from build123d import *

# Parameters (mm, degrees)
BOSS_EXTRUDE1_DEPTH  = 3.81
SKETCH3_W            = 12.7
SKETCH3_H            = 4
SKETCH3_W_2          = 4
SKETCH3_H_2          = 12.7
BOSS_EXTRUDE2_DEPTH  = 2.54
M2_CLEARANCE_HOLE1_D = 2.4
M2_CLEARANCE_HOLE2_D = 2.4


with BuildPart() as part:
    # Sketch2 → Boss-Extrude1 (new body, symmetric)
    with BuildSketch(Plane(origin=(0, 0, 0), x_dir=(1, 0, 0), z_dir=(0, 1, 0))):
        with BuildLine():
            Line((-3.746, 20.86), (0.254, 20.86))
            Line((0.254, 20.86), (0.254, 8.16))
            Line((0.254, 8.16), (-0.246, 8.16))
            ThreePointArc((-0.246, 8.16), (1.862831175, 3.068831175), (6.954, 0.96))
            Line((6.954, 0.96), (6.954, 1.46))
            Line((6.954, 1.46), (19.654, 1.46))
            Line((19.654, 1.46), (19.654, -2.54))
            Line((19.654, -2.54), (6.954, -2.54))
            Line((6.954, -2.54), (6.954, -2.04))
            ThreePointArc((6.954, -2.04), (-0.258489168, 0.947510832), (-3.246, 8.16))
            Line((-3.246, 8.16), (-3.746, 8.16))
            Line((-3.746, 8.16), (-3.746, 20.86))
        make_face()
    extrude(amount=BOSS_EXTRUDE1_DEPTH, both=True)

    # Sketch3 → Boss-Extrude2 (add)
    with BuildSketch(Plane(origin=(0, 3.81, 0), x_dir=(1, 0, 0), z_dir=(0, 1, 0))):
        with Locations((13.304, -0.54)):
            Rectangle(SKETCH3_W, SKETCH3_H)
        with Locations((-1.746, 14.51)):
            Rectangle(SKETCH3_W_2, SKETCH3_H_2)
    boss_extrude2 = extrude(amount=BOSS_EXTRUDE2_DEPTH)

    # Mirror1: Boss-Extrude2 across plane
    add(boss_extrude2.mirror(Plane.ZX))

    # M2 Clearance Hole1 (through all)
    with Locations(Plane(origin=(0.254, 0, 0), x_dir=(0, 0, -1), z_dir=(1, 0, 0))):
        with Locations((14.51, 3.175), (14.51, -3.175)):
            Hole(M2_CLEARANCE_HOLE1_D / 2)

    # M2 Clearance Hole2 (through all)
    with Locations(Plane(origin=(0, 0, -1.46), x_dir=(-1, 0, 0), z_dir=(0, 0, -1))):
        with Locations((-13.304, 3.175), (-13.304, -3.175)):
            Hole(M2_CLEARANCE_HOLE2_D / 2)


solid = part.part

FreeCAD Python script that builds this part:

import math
import FreeCAD as App
import Part
import Sketcher

doc = App.newDocument("Part")
body = doc.addObject("PartDesign::Body", "Body")

sketch1 = body.newObject("Sketcher::SketchObject", "Sketch")
sketch1.AttachmentSupport = (doc.getObject("XZ_Plane"), [""])
sketch1.MapMode = "FlatFace"
sketch1.addGeometry(Part.LineSegment(App.Vector(0.254, -20.86, 0), App.Vector(-3.746, -20.86, 0)), False)
sketch1.addGeometry(Part.LineSegment(App.Vector(-3.746, -20.86, 0), App.Vector(-3.746, -8.16, 0)), False)
sketch1.addGeometry(Part.LineSegment(App.Vector(-3.746, -8.16, 0), App.Vector(-3.246, -8.16, 0)), False)
sketch1.addGeometry(Part.ArcOfCircle(Part.Circle(App.Vector(6.954, -8.16, 0), App.Vector(0, 0, 1), 10.2), math.radians(90), math.radians(180)), False)
sketch1.addGeometry(Part.LineSegment(App.Vector(6.954, 2.04, 0), App.Vector(6.954, 2.54, 0)), False)
sketch1.addGeometry(Part.LineSegment(App.Vector(6.954, 2.54, 0), App.Vector(19.654, 2.54, 0)), False)
sketch1.addGeometry(Part.LineSegment(App.Vector(19.654, 2.54, 0), App.Vector(19.654, -1.46, 0)), False)
sketch1.addGeometry(Part.LineSegment(App.Vector(19.654, -1.46, 0), App.Vector(6.954, -1.46, 0)), False)
sketch1.addGeometry(Part.LineSegment(App.Vector(6.954, -1.46, 0), App.Vector(6.954, -0.96, 0)), False)
sketch1.addGeometry(Part.ArcOfCircle(Part.Circle(App.Vector(6.954, -8.16, 0), App.Vector(0, 0, 1), 7.2), math.radians(90), math.radians(180)), False)
sketch1.addGeometry(Part.LineSegment(App.Vector(-0.246, -8.16, 0), App.Vector(0.254, -8.16, 0)), False)
sketch1.addGeometry(Part.LineSegment(App.Vector(0.254, -8.16, 0), App.Vector(0.254, -20.86, 0)), False)
sketch1.addConstraint(Sketcher.Constraint("Coincident", 0, 2, 1, 1))
sketch1.addConstraint(Sketcher.Constraint("Coincident", 1, 2, 2, 1))
sketch1.addConstraint(Sketcher.Constraint("Coincident", 2, 2, 3, 2))
sketch1.addConstraint(Sketcher.Constraint("Coincident", 3, 1, 4, 1))
sketch1.addConstraint(Sketcher.Constraint("Coincident", 4, 2, 5, 1))
sketch1.addConstraint(Sketcher.Constraint("Coincident", 5, 2, 6, 1))
sketch1.addConstraint(Sketcher.Constraint("Coincident", 6, 2, 7, 1))
sketch1.addConstraint(Sketcher.Constraint("Coincident", 7, 2, 8, 1))
sketch1.addConstraint(Sketcher.Constraint("Coincident", 8, 2, 9, 1))
sketch1.addConstraint(Sketcher.Constraint("Coincident", 9, 2, 10, 1))
sketch1.addConstraint(Sketcher.Constraint("Coincident", 10, 2, 11, 1))
sketch1.addConstraint(Sketcher.Constraint("Coincident", 11, 2, 0, 1))
sketch1.addConstraint(Sketcher.Constraint("Horizontal", 0))
sketch1.addConstraint(Sketcher.Constraint("Vertical", 1))
sketch1.addConstraint(Sketcher.Constraint("Horizontal", 2))
sketch1.addConstraint(Sketcher.Constraint("Vertical", 4))
sketch1.addConstraint(Sketcher.Constraint("Horizontal", 5))
sketch1.addConstraint(Sketcher.Constraint("Vertical", 6))
sketch1.addConstraint(Sketcher.Constraint("Horizontal", 7))
sketch1.addConstraint(Sketcher.Constraint("Vertical", 8))
sketch1.addConstraint(Sketcher.Constraint("Horizontal", 10))
sketch1.addConstraint(Sketcher.Constraint("Vertical", 11))
sketch1.addConstraint(Sketcher.Constraint("Coincident", 9, 3, 3, 3))
sketch1.addConstraint(Sketcher.Constraint("Horizontal", 9, 3, 1, 2))
sketch1.addConstraint(Sketcher.Constraint("Horizontal", 2, 2, 9, 2))
sketch1.addConstraint(Sketcher.Constraint("Vertical", 9, 3, 3, 1))
sketch1.addConstraint(Sketcher.Constraint("Vertical", 4, 2, 7, 2))
sketch1.addConstraint(Sketcher.Constraint("Equal", 2, 10))
sketch1.addConstraint(Sketcher.Constraint("Equal", 7, 1))
sketch1.addConstraint(Sketcher.Constraint("Equal", 10, 4))
sketch1.addConstraint(Sketcher.Constraint("Equal", 0, 6))
sketch1.addConstraint(Sketcher.Constraint("Radius", 3, 10.2))
sketch1.addConstraint(Sketcher.Constraint("Radius", 9, 7.2))
sketch1.addConstraint(Sketcher.Constraint("DistanceX", 0, 2, 0, 1, 4.0))
sketch1.addConstraint(Sketcher.Constraint("DistanceX", 5, 1, 5, 2, 12.7))
sketch1.addConstraint(Sketcher.Constraint("DistanceY", 3, 3, -1, 1, 8.16))
sketch1.addConstraint(Sketcher.Constraint("DistanceX", -1, 1, 3, 3, 6.954))
pad1 = body.newObject("PartDesign::Pad", "Pad")
pad1.Profile = sketch1
pad1.Length = 7.62
pad1.Midplane = True

sketch2 = body.newObject("Sketcher::SketchObject", "Sketch001")
sketch2.AttachmentSupport = (doc.getObject("XZ_Plane"), [""])
sketch2.MapMode = "FlatFace"
sketch2.AttachmentOffset = App.Placement(App.Vector(0, 0, -3.81), App.Rotation())
sketch2.addGeometry(Part.LineSegment(App.Vector(6.954, -1.46, 0), App.Vector(6.954, 2.54, 0)), False)
sketch2.addGeometry(Part.LineSegment(App.Vector(6.954, 2.54, 0), App.Vector(19.654, 2.54, 0)), False)
sketch2.addGeometry(Part.LineSegment(App.Vector(19.654, 2.54, 0), App.Vector(19.654, -1.46, 0)), False)
sketch2.addGeometry(Part.LineSegment(App.Vector(19.654, -1.46, 0), App.Vector(6.954, -1.46, 0)), False)
sketch2.addGeometry(Part.LineSegment(App.Vector(-3.746, -20.86, 0), App.Vector(-3.746, -8.16, 0)), False)
sketch2.addGeometry(Part.LineSegment(App.Vector(-3.746, -8.16, 0), App.Vector(0.254, -8.16, 0)), False)
sketch2.addGeometry(Part.LineSegment(App.Vector(0.254, -8.16, 0), App.Vector(0.254, -20.86, 0)), False)
sketch2.addGeometry(Part.LineSegment(App.Vector(0.254, -20.86, 0), App.Vector(-3.746, -20.86, 0)), False)
sketch2.addConstraint(Sketcher.Constraint("Coincident", 0, 2, 1, 1))
sketch2.addConstraint(Sketcher.Constraint("Coincident", 1, 2, 2, 1))
sketch2.addConstraint(Sketcher.Constraint("Coincident", 2, 2, 3, 1))
sketch2.addConstraint(Sketcher.Constraint("Coincident", 3, 2, 0, 1))
sketch2.addConstraint(Sketcher.Constraint("Coincident", 4, 2, 5, 1))
sketch2.addConstraint(Sketcher.Constraint("Coincident", 5, 2, 6, 1))
sketch2.addConstraint(Sketcher.Constraint("Coincident", 6, 2, 7, 1))
sketch2.addConstraint(Sketcher.Constraint("Coincident", 7, 2, 4, 1))
sketch2.addConstraint(Sketcher.Constraint("Vertical", 0))
sketch2.addConstraint(Sketcher.Constraint("Horizontal", 1))
sketch2.addConstraint(Sketcher.Constraint("Vertical", 2))
sketch2.addConstraint(Sketcher.Constraint("Horizontal", 3))
sketch2.addConstraint(Sketcher.Constraint("Vertical", 4))
sketch2.addConstraint(Sketcher.Constraint("Horizontal", 5))
sketch2.addConstraint(Sketcher.Constraint("Vertical", 6))
sketch2.addConstraint(Sketcher.Constraint("Horizontal", 7))
sketch2.addConstraint(Sketcher.Constraint("Equal", 7, 0))
sketch2.addConstraint(Sketcher.Constraint("Equal", 3, 4))
sketch2.addConstraint(Sketcher.Constraint("DistanceX", 5, 1, 5, 2, 4.0))
sketch2.addConstraint(Sketcher.Constraint("DistanceX", 1, 1, 1, 2, 12.7))
sketch2.addConstraint(Sketcher.Constraint("DistanceX", 4, 2, 3, 2, 10.7))
sketch2.addConstraint(Sketcher.Constraint("DistanceY", 4, 2, 3, 2, 6.7))
sketch2.addConstraint(Sketcher.Constraint("DistanceY", -1, 1, 0, 2, 2.54))
sketch2.addConstraint(Sketcher.Constraint("DistanceX", -1, 1, 0, 2, 6.954))
pad2 = body.newObject("PartDesign::Pad", "Pad001")
pad2.Profile = sketch2
pad2.Length = 2.54
pad2.Reversed = True
doc.recompute()

mirrored = body.newObject("PartDesign::Mirrored", "Mirrored")
mirrored.Originals = [pad2]
mirrored.MirrorPlane = (doc.getObject("XZ_Plane"), [""])
body.Tip = mirrored

sketch3 = body.newObject("Sketcher::SketchObject", "Sketch002")
sketch3.AttachmentSupport = (doc.getObject("YZ_Plane"), [""])
sketch3.MapMode = "FlatFace"
sketch3.AttachmentOffset = App.Placement(App.Vector(0, 0, 0.254), App.Rotation())
sketch3.addGeometry(Part.Circle(App.Vector(3.175, -14.51, 0), App.Vector(0, 0, 1), 1.2), False)
sketch3.addGeometry(Part.Circle(App.Vector(-3.175, -14.51, 0), App.Vector(0, 0, 1), 1.2), False)
sketch3.addConstraint(Sketcher.Constraint("Equal", 0, 1))
sketch3.addConstraint(Sketcher.Constraint("Symmetric", 0, 3, 1, 3, -2))
sketch3.addConstraint(Sketcher.Constraint("Diameter", 0, 2.4))
sketch3.addConstraint(Sketcher.Constraint("DistanceY", 0, 3, -1, 1, 14.51))
sketch3.addConstraint(Sketcher.Constraint("DistanceX", 1, 3, 0, 3, 6.35))
doc.recompute()
hole = body.newObject("PartDesign::Hole", "Hole")
hole.Profile = sketch3
hole.ThreadType = "None"
hole.Diameter = 2.4
hole.DepthType = "ThroughAll"

sketch4 = body.newObject("Sketcher::SketchObject", "Sketch003")
sketch4.AttachmentSupport = (doc.getObject("XY_Plane"), [""])
sketch4.MapMode = "FlatFace"
sketch4.AttachmentOffset = App.Placement(App.Vector(0, 0, -1.46), App.Rotation())
sketch4.addGeometry(Part.Circle(App.Vector(13.304, 3.175, 0), App.Vector(0, 0, 1), 1.2), False)
sketch4.addGeometry(Part.Circle(App.Vector(13.304, -3.175, 0), App.Vector(0, 0, 1), 1.2), False)
sketch4.addConstraint(Sketcher.Constraint("Equal", 0, 1))
sketch4.addConstraint(Sketcher.Constraint("Symmetric", 0, 3, 1, 3, -1))
sketch4.addConstraint(Sketcher.Constraint("Diameter", 0, 2.4))
sketch4.addConstraint(Sketcher.Constraint("DistanceY", 1, 3, 0, 3, 6.35))
sketch4.addConstraint(Sketcher.Constraint("DistanceX", -1, 1, 0, 3, 13.304))
doc.recompute()
hole2 = body.newObject("PartDesign::Hole", "Hole001")
hole2.Profile = sketch4
hole2.ThreadType = "None"
hole2.Diameter = 2.4
hole2.DepthType = "ThroughAll"
hole2.Reversed = True

doc.recompute()
